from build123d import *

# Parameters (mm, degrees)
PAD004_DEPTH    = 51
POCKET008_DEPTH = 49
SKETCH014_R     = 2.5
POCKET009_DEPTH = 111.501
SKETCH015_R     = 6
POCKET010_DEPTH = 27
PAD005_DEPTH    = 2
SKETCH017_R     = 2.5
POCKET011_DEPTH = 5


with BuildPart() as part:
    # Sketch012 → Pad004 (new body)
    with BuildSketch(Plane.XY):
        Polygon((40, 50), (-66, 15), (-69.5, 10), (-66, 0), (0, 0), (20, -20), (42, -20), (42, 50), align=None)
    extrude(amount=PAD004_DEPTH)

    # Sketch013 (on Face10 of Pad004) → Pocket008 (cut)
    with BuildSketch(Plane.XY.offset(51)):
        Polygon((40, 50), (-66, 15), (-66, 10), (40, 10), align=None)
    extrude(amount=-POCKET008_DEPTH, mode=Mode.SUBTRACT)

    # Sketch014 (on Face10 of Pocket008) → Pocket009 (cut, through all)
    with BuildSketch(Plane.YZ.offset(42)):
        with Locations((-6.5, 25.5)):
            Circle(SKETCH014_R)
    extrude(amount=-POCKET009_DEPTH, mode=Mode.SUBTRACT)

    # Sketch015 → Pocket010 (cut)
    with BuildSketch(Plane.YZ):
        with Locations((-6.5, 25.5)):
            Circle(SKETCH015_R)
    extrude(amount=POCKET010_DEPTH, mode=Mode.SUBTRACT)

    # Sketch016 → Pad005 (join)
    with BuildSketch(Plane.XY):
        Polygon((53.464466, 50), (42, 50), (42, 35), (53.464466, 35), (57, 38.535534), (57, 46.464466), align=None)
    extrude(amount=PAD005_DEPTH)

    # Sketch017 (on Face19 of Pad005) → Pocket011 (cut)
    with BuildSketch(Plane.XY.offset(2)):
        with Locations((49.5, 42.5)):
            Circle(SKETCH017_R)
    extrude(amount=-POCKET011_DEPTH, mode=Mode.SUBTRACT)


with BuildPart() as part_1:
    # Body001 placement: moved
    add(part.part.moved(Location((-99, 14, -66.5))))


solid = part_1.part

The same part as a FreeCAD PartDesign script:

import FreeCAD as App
import Part
import Sketcher
Q = App.Units.Quantity


def add_polygon(sketch, points):
    """Adds a closed chain of lines whose ends are joined by coincident constraints."""
    first, n = sketch.GeometryCount, len(points)
    for a, b in zip(points, points[1:] + points[:1]):
        sketch.addGeometry(Part.LineSegment(App.Vector(*a, 0), App.Vector(*b, 0)), False)
    for i in range(n):
        sketch.addConstraint(Sketcher.Constraint("Coincident", first + i, 2, first + (i + 1) % n, 1))

doc = App.newDocument("Part")
body = doc.addObject("PartDesign::Body", "Body")

# Sketch on XY plane
sketch1 = body.newObject("Sketcher::SketchObject", "Sketch")
sketch1.AttachmentSupport = (doc.getObject("XY_Plane"), [""])
sketch1.MapMode = "FlatFace"
add_polygon(sketch1, [(40, 50), (-66, 15), (-69.5, 10), (-66, 0), (0, 0), (20, -20), (42, -20), (42, 50)])  # lines 0-7
sketch1.addConstraint(Sketcher.Constraint("Horizontal", 3))
sketch1.addConstraint(Sketcher.Constraint("Horizontal", 5))
sketch1.addConstraint(Sketcher.Constraint("Vertical", 6))
sketch1.addConstraint(Sketcher.Constraint("Horizontal", 7))
sketch1.addConstraint(Sketcher.Constraint("Coincident", 3, 2, -1, 1))
sketch1.addConstraint(Sketcher.Constraint("Vertical", 0, 2, 2, 2))
sketch1.addConstraint(Sketcher.Constraint("DistanceX", 3, 1, 3, 2, 66.0))
sketch1.addConstraint(Sketcher.Constraint("DistanceX", 5, 1, 5, 2, 22.0))
sketch1.addConstraint(Sketcher.Constraint("DistanceX", 7, 2, 7, 1, 2.0))
sketch1.addConstraint(Sketcher.Constraint("DistanceY", 6, 1, 6, 2, 70.0))
sketch1.addConstraint(Sketcher.Constraint("Angle", 4, Q("-45 deg")))
sketch1.addConstraint(Sketcher.Constraint("DistanceY", -1, 1, 0, 2, 15.0))
sketch1.addConstraint(Sketcher.Constraint("DistanceY", -1, 1, 1, 2, 10.0))
sketch1.addConstraint(Sketcher.Constraint("DistanceX", -1, 1, 4, 2, 20.0))
sketch1.addConstraint(Sketcher.Constraint("DistanceX", 1, 2, -1, 1, 69.5))
pad1 = body.newObject("PartDesign::Pad", "Pad")
pad1.Profile = sketch1
pad1.Length = 51

# Sketch on XY plane
sketch2 = body.newObject("Sketcher::SketchObject", "Sketch001")
sketch2.AttachmentSupport = (doc.getObject("XY_Plane"), [""])
sketch2.MapMode = "FlatFace"
sketch2.AttachmentOffset = App.Placement(App.Vector(0, 0, 51), App.Rotation())
add_polygon(sketch2, [(40, 50), (-66, 15), (-66, 10), (40, 10)])  # lines 0-3
sketch2.addConstraint(Sketcher.Constraint("Vertical", 1))
sketch2.addConstraint(Sketcher.Constraint("Horizontal", 2))
sketch2.addConstraint(Sketcher.Constraint("Vertical", 3))
sketch2.addConstraint(Sketcher.Constraint("DistanceX", 2, 1, 2, 2, 106.0))
sketch2.addConstraint(Sketcher.Constraint("DistanceY", 1, 2, 1, 1, 5.0))
sketch2.addConstraint(Sketcher.Constraint("DistanceY", 3, 1, 3, 2, 40.0))
sketch2.addConstraint(Sketcher.Constraint("DistanceX", 0, 2, -1, 1, 66.0))
sketch2.addConstraint(Sketcher.Constraint("DistanceY", -1, 1, 0, 2, 15.0))
pocket1 = body.newObject("PartDesign::Pocket", "Pocket")
pocket1.Profile = sketch2
pocket1.Length = 49

# Sketch on YZ plane
sketch3 = body.newObject("Sketcher::SketchObject", "Sketch002")
sketch3.AttachmentSupport = (doc.getObject("YZ_Plane"), [""])
sketch3.MapMode = "FlatFace"
sketch3.AttachmentOffset = App.Placement(App.Vector(0, 0, 42), App.Rotation())
sketch3.addGeometry(Part.Circle(App.Vector(-6.5, 25.5, 0), App.Vector(0, 0, 1), 2.5), False)
sketch3.addConstraint(Sketcher.Constraint("Diameter", 0, 5.0))
sketch3.addConstraint(Sketcher.Constraint("DistanceX", 0, 3, -1, 1, 6.5))
sketch3.addConstraint(Sketcher.Constraint("DistanceY", -1, 1, 0, 3, 25.5))
pocket2 = body.newObject("PartDesign::Pocket", "Pocket001")
pocket2.Profile = sketch3
pocket2.Type = "ThroughAll"

# Sketch on YZ plane
sketch4 = body.newObject("Sketcher::SketchObject", "Sketch003")
sketch4.AttachmentSupport = (doc.getObject("YZ_Plane"), [""])
sketch4.MapMode = "FlatFace"
sketch4.addGeometry(Part.Circle(App.Vector(-6, 26, 0), App.Vector(0, 0, 1), 6), False)
sketch4.addConstraint(Sketcher.Constraint("Diameter", 0, 12.0))
sketch4.addConstraint(Sketcher.Constraint("DistanceX", 0, 3, -1, 1, 6.5))
sketch4.addConstraint(Sketcher.Constraint("DistanceY", -1, 1, 0, 3, 25.5))
pocket3 = body.newObject("PartDesign::Pocket", "Pocket002")
pocket3.Profile = sketch4
pocket3.Length = 27
pocket3.Reversed = True

# Sketch on XY plane
sketch5 = body.newObject("Sketcher::SketchObject", "Sketch004")
sketch5.AttachmentSupport = (doc.getObject("XY_Plane"), [""])
sketch5.MapMode = "FlatFace"
add_polygon(sketch5, [(53, 50), (42, 50), (42, 35), (53, 35), (57, 39), (57, 46)])  # lines 0-5
sketch5.addConstraint(Sketcher.Constraint("Horizontal", 0))
sketch5.addConstraint(Sketcher.Constraint("Vertical", 1))
sketch5.addConstraint(Sketcher.Constraint("Horizontal", 2))
sketch5.addConstraint(Sketcher.Constraint("Vertical", 4))
sketch5.addConstraint(Sketcher.Constraint("Perpendicular", 3, 5))
sketch5.addConstraint(Sketcher.Constraint("Vertical", 2, 2, 5, 2))
sketch5.addConstraint(Sketcher.Constraint("Equal", 3, 5))
sketch5.addConstraint(Sketcher.Constraint("DistanceY", 1, 2, 1, 1, 15.0))
sketch5.addConstraint(Sketcher.Constraint("Distance", 3, 5.0))
sketch5.addConstraint(Sketcher.Constraint("DistanceX", -1, 1, 0, 2, 42.0))
sketch5.addConstraint(Sketcher.Constraint("DistanceY", -1, 1, 0, 2, 50.0))
sketch5.addConstraint(Sketcher.Constraint("DistanceX", -1, 1, 3, 2, 57.0))
pad2 = body.newObject("PartDesign::Pad", "Pad001")
pad2.Profile = sketch5
pad2.Length = 2

# Sketch on XY plane
sketch6 = body.newObject("Sketcher::SketchObject", "Sketch005")
sketch6.AttachmentSupport = (doc.getObject("XY_Plane"), [""])
sketch6.MapMode = "FlatFace"
sketch6.AttachmentOffset = App.Placement(App.Vector(0, 0, 2), App.Rotation())
sketch6.addGeometry(Part.Circle(App.Vector(49.5, 42.5, 0), App.Vector(0, 0, 1), 2.5), False)
sketch6.addConstraint(Sketcher.Constraint("Diameter", 0, 5.0))
sketch6.addConstraint(Sketcher.Constraint("DistanceX", -1, 1, 0, 3, 49.5))
sketch6.addConstraint(Sketcher.Constraint("DistanceY", -1, 1, 0, 3, 42.5))
pocket4 = body.newObject("PartDesign::Pocket", "Pocket003")
pocket4.Profile = sketch6
pocket4.Length = 5
body2 = doc.addObject("PartDesign::Body", "Body001")
doc.recompute()

body.Placement = App.Placement(App.Vector(-99, 14, -66.5), App.Rotation(App.Vector(0, 0, 1), 0))
boolean = body2.newObject("PartDesign::Boolean", "Boolean")
boolean.Type = "Fuse"
boolean.addObjects([body])

doc.recompute()
